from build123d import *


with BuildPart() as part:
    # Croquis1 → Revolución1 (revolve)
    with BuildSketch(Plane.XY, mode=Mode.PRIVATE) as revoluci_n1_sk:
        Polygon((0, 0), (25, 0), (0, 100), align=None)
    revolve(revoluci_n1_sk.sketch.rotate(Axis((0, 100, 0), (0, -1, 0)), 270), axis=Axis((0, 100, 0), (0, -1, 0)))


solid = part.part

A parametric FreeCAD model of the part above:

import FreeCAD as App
import Part
import Sketcher

V = App.Vector

doc = App.newDocument("Part")
params = doc.addObject("Spreadsheet::Sheet", "Params")
for row, (alias, value) in enumerate([
    ("sketch1_width", "25 mm"),
    ("sketch1_height", "100 mm"),
    ("revolution_angle", "360 deg"),
], start=1):
    params.set(f"A{row}", alias)
    params.set(f"B{row}", "=" + value)
    params.setAlias(f"B{row}", alias)

body = doc.addObject("PartDesign::Body", "Body")

sketch1 = doc.addObject("Sketcher::SketchObject", "Sketch")
body.addObject(sketch1)
sketch1.AttachmentSupport = (doc.XY_Plane, [""])
sketch1.MapMode = "FlatFace"
sketch1.addGeometry(Part.LineSegment(V(0, 0, 0), V(25, 0, 0)), False)
sketch1.addGeometry(Part.LineSegment(V(25, 0, 0), V(0, 100, 0)), False)
sketch1.addGeometry(Part.LineSegment(V(0, 100, 0), V(0, 0, 0)), False)
sketch1.addConstraint(Sketcher.Constraint("Coincident", 0, 2, 1, 1))
sketch1.addConstraint(Sketcher.Constraint("Coincident", 1, 2, 2, 1))
sketch1.addConstraint(Sketcher.Constraint("Coincident", 2, 2, 0, 1))
sketch1.addConstraint(Sketcher.Constraint("Horizontal", 0))
sketch1.addConstraint(Sketcher.Constraint("Vertical", 2))
sketch1.addConstraint(Sketcher.Constraint("Coincident", 2, 2, -1, 1))
sketch1.addConstraint(Sketcher.Constraint("DistanceX", 0, 1, 0, 2, 25.0))
sketch1.addConstraint(Sketcher.Constraint("DistanceY", 2, 2, 2, 1, 100.0))
sketch1.setExpression("Constraints[6]", "Params.sketch1_width")
sketch1.setExpression("Constraints[7]", "Params.sketch1_height")
revolution = doc.addObject("PartDesign::Revolution", "Revolution")
body.addObject(revolution)
revolution.Profile = sketch1
revolution.ReferenceAxis = (sketch1, ["V_Axis"])
revolution.setExpression("Angle", "Params.revolution_angle")

doc.recompute()
